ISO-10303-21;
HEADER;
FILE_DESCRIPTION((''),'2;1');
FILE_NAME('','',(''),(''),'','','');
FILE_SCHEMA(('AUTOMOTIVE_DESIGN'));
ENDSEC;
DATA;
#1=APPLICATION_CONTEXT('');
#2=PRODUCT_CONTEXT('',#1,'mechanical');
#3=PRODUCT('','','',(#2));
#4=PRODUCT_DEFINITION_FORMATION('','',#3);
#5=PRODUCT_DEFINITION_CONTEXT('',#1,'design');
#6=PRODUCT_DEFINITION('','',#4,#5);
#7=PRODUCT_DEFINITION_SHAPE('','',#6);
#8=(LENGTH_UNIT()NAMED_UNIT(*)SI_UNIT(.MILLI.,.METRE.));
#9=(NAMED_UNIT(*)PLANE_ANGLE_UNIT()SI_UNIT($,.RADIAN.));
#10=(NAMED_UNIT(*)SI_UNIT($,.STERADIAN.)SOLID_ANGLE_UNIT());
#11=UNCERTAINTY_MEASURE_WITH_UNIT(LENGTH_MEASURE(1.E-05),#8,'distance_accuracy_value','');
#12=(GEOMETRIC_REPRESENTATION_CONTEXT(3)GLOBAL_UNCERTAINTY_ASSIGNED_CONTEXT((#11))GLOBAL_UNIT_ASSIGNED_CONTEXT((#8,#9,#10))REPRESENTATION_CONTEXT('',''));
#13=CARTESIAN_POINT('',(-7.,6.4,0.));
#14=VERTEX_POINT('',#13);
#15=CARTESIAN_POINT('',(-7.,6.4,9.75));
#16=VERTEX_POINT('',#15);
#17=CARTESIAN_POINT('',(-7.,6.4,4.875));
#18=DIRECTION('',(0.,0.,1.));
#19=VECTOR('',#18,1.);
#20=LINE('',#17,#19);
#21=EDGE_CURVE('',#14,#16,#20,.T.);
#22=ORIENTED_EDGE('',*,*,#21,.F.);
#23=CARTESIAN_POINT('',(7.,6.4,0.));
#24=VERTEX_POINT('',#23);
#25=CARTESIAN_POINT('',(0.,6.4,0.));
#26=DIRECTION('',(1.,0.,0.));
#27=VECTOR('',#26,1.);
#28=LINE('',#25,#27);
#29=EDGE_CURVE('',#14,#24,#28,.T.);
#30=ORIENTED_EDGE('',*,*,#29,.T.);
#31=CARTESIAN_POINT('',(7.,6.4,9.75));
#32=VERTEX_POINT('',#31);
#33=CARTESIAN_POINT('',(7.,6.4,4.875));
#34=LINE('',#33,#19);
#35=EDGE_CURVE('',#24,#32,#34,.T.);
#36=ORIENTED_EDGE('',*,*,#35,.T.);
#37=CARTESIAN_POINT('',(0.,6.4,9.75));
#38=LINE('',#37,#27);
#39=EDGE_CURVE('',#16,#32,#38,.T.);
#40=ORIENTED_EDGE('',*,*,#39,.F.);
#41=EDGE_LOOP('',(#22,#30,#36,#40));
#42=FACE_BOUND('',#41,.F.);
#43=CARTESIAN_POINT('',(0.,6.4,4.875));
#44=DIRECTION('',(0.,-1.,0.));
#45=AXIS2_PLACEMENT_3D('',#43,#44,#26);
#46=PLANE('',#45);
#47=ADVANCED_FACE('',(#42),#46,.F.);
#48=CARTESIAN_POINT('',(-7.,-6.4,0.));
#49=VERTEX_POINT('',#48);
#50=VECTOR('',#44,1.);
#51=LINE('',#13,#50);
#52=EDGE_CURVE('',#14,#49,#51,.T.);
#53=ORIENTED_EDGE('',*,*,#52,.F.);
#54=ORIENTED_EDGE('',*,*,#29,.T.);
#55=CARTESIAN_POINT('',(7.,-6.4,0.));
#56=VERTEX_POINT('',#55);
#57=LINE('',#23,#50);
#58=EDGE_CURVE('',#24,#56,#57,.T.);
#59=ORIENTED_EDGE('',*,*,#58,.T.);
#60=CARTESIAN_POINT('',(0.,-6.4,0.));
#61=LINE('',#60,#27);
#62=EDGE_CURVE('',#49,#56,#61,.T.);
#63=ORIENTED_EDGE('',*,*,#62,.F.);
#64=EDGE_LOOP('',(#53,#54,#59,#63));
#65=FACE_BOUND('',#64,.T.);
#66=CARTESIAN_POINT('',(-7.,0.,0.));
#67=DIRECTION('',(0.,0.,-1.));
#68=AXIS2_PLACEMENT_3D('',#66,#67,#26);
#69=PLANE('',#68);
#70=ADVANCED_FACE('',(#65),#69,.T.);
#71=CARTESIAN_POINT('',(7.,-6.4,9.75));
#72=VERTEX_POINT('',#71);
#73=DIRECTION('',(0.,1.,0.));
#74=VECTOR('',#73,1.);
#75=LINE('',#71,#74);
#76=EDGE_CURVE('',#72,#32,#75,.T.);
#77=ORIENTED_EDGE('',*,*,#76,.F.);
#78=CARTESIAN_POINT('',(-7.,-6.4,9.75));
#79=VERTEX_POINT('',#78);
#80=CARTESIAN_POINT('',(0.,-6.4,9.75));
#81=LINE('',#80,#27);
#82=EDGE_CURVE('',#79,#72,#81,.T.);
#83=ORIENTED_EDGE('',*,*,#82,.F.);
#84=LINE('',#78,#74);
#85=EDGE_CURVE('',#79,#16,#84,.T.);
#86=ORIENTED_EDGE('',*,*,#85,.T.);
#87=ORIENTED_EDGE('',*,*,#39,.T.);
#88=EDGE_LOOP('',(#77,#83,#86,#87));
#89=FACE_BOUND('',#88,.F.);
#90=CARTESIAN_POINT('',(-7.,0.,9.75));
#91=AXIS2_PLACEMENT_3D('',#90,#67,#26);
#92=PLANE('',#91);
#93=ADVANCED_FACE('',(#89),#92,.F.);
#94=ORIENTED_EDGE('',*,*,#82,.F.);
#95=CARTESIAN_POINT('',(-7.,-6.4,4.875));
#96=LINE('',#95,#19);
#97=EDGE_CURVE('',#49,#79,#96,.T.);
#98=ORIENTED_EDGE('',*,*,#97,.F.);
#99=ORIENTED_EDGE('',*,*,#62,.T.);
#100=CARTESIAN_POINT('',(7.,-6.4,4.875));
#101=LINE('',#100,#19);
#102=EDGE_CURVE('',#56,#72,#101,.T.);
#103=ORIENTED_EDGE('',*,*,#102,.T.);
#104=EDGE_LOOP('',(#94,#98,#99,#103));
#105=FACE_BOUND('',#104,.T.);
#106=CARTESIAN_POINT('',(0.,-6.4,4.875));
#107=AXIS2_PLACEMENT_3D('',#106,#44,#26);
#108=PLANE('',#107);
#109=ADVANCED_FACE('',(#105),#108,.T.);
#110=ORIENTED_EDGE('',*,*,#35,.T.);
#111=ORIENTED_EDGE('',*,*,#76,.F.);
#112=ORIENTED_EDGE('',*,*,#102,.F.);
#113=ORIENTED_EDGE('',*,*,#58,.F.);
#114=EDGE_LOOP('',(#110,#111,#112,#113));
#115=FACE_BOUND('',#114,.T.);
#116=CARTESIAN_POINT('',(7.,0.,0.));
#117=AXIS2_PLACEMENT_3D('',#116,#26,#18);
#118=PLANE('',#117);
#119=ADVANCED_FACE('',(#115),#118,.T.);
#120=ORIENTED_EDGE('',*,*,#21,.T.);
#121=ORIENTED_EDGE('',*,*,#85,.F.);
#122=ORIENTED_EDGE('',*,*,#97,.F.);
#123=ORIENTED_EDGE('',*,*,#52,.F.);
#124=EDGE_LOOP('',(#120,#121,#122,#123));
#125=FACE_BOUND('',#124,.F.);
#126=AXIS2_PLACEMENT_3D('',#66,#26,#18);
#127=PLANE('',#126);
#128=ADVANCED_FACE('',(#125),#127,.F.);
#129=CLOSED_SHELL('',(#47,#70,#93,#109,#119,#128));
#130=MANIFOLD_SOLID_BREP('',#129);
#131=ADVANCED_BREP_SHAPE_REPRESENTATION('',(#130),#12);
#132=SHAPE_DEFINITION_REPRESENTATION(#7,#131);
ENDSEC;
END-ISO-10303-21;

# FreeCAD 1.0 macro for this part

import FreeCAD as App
import Part
import Sketcher
from FreeCAD import Vector


def add_polygon(sketch, points):
    """Adds a closed chain of lines whose ends are joined by coincident constraints."""
    first, n = sketch.GeometryCount, len(points)
    for a, b in zip(points, points[1:] + points[:1]):
        sketch.addGeometry(Part.LineSegment(App.Vector(*a, 0), App.Vector(*b, 0)), False)
    for i in range(n):
        sketch.addConstraint(Sketcher.Constraint("Coincident", first + i, 2, first + (i + 1) % n, 1))

doc = App.newDocument("Part")
body = doc.addObject("PartDesign::Body", "Body")

# Sketch on XZ plane
sketch1 = body.newObject("Sketcher::SketchObject", "Sketch")
sketch1.AttachmentSupport = (doc.getObject("XZ_Plane"), [""])
sketch1.MapMode = "FlatFace"
add_polygon(sketch1, [(-7, 10), (-7, 0), (7, 0), (7, 10)])  # lines 0-3
sketch1.addConstraint(Sketcher.Constraint("Vertical", 0))
sketch1.addConstraint(Sketcher.Constraint("Horizontal", 1))
sketch1.addConstraint(Sketcher.Constraint("Vertical", 2))
sketch1.addConstraint(Sketcher.Constraint("Horizontal", 3))
sketch1.addConstraint(Sketcher.Constraint("Symmetric", 0, 2, 1, 2, -1, 1))
sketch1.addConstraint(Sketcher.Constraint("DistanceX", 1, 1, 1, 2, 14.0))
sketch1.addConstraint(Sketcher.Constraint("DistanceY", 0, 2, 0, 1, 9.75))
pad1 = body.newObject("PartDesign::Pad", "Pad")
pad1.Profile = sketch1
pad1.Length = 12.8
pad1.Midplane = True

doc.recompute()
